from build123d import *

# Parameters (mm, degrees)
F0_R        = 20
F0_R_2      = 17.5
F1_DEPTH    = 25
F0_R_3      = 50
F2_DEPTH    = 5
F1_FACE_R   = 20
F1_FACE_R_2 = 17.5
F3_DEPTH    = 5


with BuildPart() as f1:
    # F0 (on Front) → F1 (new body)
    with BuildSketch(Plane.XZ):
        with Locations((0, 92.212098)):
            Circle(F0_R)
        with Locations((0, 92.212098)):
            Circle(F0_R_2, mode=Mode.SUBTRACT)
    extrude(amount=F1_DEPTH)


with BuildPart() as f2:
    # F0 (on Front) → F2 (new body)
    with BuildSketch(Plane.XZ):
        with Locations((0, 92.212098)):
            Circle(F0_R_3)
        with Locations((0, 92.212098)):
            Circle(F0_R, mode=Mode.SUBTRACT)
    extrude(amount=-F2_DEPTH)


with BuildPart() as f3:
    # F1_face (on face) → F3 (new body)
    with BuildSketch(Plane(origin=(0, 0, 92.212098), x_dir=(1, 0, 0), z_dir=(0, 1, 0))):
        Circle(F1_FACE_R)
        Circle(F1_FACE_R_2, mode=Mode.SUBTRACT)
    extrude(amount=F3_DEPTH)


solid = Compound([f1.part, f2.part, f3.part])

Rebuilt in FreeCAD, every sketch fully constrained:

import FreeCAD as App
import Part
import Sketcher
Q = App.Units.Quantity

doc = App.newDocument("Part")
body = doc.addObject("PartDesign::Body", "Body")

# Sketch on XZ plane
sketch1 = body.newObject("Sketcher::SketchObject", "Sketch")
sketch1.AttachmentSupport = (doc.getObject("XZ_Plane"), [""])
sketch1.MapMode = "FlatFace"
sketch1.addGeometry([
    Part.Circle(App.Vector(0, 92, 0), App.Vector(0, 0, 1), 20),
    Part.Circle(App.Vector(0, 92, 0), App.Vector(0, 0, 1), 18),
], False)
sketch1.addConstraint([
    Sketcher.Constraint("Coincident", 1, 3, 0, 3),
    Sketcher.Constraint("PointOnObject", 0, 3, -2),
    Sketcher.Constraint("Diameter", 0, Q("40 mm")),
    Sketcher.Constraint("Diameter", 1, Q("35 mm")),
    Sketcher.Constraint("DistanceY", -1, 1, 0, 3, Q("92.212098 mm")),
])
pad1 = body.newObject("PartDesign::Pad", "Pad")
pad1.Profile = sketch1
pad1.Length = 25
body2 = doc.addObject("PartDesign::Body", "Body001")

# Sketch on XZ plane
sketch2 = body2.newObject("Sketcher::SketchObject", "Sketch001")
sketch2.AttachmentSupport = (doc.getObject("XZ_Plane001"), [""])
sketch2.MapMode = "FlatFace"
sketch2.addGeometry([
    Part.Circle(App.Vector(0, 92, 0), App.Vector(0, 0, 1), 50),
    Part.Circle(App.Vector(0, 92, 0), App.Vector(0, 0, 1), 20),
], False)
sketch2.addConstraint([
    Sketcher.Constraint("Coincident", 1, 3, 0, 3),
    Sketcher.Constraint("PointOnObject", 0, 3, -2),
    Sketcher.Constraint("Diameter", 0, Q("100 mm")),
    Sketcher.Constraint("Diameter", 1, Q("40 mm")),
    Sketcher.Constraint("DistanceY", -1, 1, 0, 3, Q("92.212098 mm")),
])
pad2 = body2.newObject("PartDesign::Pad", "Pad001")
pad2.Profile = sketch2
pad2.Length = 5
pad2.Reversed = True
body3 = doc.addObject("PartDesign::Body", "Body002")

# Sketch on XZ plane
sketch3 = body3.newObject("Sketcher::SketchObject", "Sketch002")
sketch3.AttachmentSupport = (doc.getObject("XZ_Plane002"), [""])
sketch3.MapMode = "FlatFace"
sketch3.addGeometry([
    Part.Circle(App.Vector(0, 92, 0), App.Vector(0, 0, 1), 20),
    Part.Circle(App.Vector(0, 92, 0), App.Vector(0, 0, 1), 18),
], False)
sketch3.addConstraint([
    Sketcher.Constraint("Coincident", 1, 3, 0, 3),
    Sketcher.Constraint("PointOnObject", 0, 3, -2),
    Sketcher.Constraint("Diameter", 0, Q("40 mm")),
    Sketcher.Constraint("Diameter", 1, Q("35 mm")),
    Sketcher.Constraint("DistanceY", -1, 1, 0, 3, Q("92.212098 mm")),
])
pad3 = body3.newObject("PartDesign::Pad", "Pad002")
pad3.Profile = sketch3
pad3.Length = 5
pad3.Reversed = True

doc.recompute()
